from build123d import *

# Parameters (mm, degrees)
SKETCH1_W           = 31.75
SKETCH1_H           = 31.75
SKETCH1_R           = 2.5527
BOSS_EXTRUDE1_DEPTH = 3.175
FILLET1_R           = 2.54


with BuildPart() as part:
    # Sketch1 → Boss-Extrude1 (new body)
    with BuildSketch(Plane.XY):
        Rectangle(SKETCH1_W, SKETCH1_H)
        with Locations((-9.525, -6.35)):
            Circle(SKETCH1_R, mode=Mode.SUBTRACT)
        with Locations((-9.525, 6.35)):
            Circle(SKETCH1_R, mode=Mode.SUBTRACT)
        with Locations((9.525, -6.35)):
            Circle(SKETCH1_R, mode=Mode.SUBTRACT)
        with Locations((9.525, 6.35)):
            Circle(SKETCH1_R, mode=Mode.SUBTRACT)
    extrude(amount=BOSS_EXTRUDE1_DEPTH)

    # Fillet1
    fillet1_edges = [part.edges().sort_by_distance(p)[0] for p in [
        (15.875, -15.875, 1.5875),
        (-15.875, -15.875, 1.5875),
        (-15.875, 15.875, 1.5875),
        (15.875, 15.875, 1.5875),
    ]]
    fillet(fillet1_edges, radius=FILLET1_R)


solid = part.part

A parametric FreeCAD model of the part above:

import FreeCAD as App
import Part
import Sketcher
Q = App.Units.Quantity


def edges_at(feature, points):
    """Names of the edges that pass closest to the given points."""
    edges = feature.Shape.Edges
    near = lambda p: min(range(len(edges)), key=lambda i: edges[i].distToShape(Part.Vertex(*p))[0])
    return sorted({f"Edge{near(p) + 1}" for p in points})

doc = App.newDocument("Part")
params = doc.addObject("Spreadsheet::Sheet", "Params")
for row, (alias, value) in enumerate([
    ("sketch1_diameter", "0.201 in"),
    ("sketch1_width", "1.25 in"),
    ("pad1_length", "0.125 in"),
    ("fillet_radius", "0.1 in"),
], start=1):
    params.set(f"A{row}", alias)
    params.set(f"B{row}", "=" + value)
    params.setAlias(f"B{row}", alias)

body = doc.addObject("PartDesign::Body", "Body")

sketch1 = body.newObject("Sketcher::SketchObject", "Sketch")
sketch1.AttachmentSupport = (doc.getObject("XY_Plane"), [""])
sketch1.MapMode = "FlatFace"
sketch1.addGeometry([
    Part.LineSegment(App.Vector(-15.875, 15.875, 0), App.Vector(-15.875, -15.875, 0)),
    Part.LineSegment(App.Vector(-15.875, -15.875, 0), App.Vector(15.875, -15.875, 0)),
    Part.LineSegment(App.Vector(15.875, -15.875, 0), App.Vector(15.875, 15.875, 0)),
    Part.LineSegment(App.Vector(15.875, 15.875, 0), App.Vector(-15.875, 15.875, 0)),
    Part.Circle(App.Vector(-9.525, -6.35, 0), App.Vector(0, 0, 1), 2.5527),
    Part.Circle(App.Vector(9.525, -6.35, 0), App.Vector(0, 0, 1), 2.5527),
    Part.Circle(App.Vector(-9.525, 6.35, 0), App.Vector(0, 0, 1), 2.5527),
    Part.Circle(App.Vector(9.525, 6.35, 0), App.Vector(0, 0, 1), 2.5527),
], False)
sketch1.addConstraint([
    Sketcher.Constraint("Coincident", 0, 2, 1, 1),
    Sketcher.Constraint("Coincident", 1, 2, 2, 1),
    Sketcher.Constraint("Coincident", 2, 2, 3, 1),
    Sketcher.Constraint("Coincident", 3, 2, 0, 1),
    Sketcher.Constraint("Vertical", 0),
    Sketcher.Constraint("Horizontal", 1),
    Sketcher.Constraint("Vertical", 2),
    Sketcher.Constraint("Horizontal", 3),
    Sketcher.Constraint("Equal", 4, 5),
    Sketcher.Constraint("Equal", 5, 6),
    Sketcher.Constraint("Equal", 6, 7),
    Sketcher.Constraint("Symmetric", 5, 3, 6, 3, -1, 1),
    Sketcher.Constraint("Symmetric", 4, 3, 7, 3, -1, 1),
    Sketcher.Constraint("Symmetric", 0, 2, 2, 2, -1, 1),
    Sketcher.Constraint("Symmetric", 4, 3, 5, 3, -2),
    Sketcher.Constraint("Equal", 3, 0),
    Sketcher.Constraint("Diameter", 4, Q("0.201 in")),
    Sketcher.Constraint("DistanceX", 0, 2, 5, 3, Q("1 in")),
    Sketcher.Constraint("DistanceX", 1, 1, 1, 2, Q("1.25 in")),
    Sketcher.Constraint("DistanceY", 4, 3, 6, 3, Q("0.5 in")),
])
sketch1.setExpression("Constraints[16]", "Params.sketch1_diameter")
sketch1.setExpression("Constraints[18]", "Params.sketch1_width")
pad1 = body.newObject("PartDesign::Pad", "Pad")
pad1.Profile = sketch1
pad1.setExpression("Length", "Params.pad1_length")
doc.recompute()

fillet = body.newObject("PartDesign::Fillet", "Fillet")
fillet.Base = (pad1, edges_at(pad1, [
    (15.875, -15.875, 1.587),
    (-15.875, -15.875, 1.587),
    (-15.875, 15.875, 1.587),
    (15.875, 15.875, 1.587),
]))
fillet.setExpression("Radius", "Params.fillet_radius")

doc.recompute()
